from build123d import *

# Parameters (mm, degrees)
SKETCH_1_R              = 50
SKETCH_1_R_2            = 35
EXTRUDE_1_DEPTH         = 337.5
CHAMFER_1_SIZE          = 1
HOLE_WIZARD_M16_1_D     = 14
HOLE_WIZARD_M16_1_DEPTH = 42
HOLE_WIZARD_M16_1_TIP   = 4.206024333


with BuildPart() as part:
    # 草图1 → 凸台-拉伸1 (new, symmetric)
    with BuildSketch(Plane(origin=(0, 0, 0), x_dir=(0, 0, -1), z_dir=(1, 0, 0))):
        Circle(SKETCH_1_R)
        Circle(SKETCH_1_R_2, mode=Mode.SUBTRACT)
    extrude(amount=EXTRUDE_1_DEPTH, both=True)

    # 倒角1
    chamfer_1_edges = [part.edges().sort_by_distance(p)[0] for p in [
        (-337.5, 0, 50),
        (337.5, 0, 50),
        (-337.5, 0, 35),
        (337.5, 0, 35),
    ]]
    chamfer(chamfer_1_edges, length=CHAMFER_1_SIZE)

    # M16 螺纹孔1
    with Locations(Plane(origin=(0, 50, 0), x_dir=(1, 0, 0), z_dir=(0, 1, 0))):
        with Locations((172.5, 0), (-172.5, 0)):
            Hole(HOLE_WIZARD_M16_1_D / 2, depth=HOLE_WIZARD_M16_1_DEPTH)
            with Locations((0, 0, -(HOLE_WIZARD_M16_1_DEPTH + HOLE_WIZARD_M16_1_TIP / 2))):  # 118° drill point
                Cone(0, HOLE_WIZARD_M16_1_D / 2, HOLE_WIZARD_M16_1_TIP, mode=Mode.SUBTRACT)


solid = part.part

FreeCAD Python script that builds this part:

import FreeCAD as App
import Part
import Sketcher

V = App.Vector
Q = App.Units.Quantity


def edges_at(feature, points):
    """Names of the edges that pass closest to the given points."""
    edges = feature.Shape.Edges
    near = lambda p: min(range(len(edges)), key=lambda i: edges[i].distToShape(Part.Vertex(*p))[0])
    return sorted({f"Edge{near(p) + 1}" for p in points})

doc = App.newDocument("Part")
params = doc.addObject("Spreadsheet::Sheet", "Params")
for row, (alias, value) in enumerate([
    ("sketch1_diameter", "100 mm"),
    ("sketch1_diameter2", "70 mm"),
    ("pad1_length", "675 mm"),
    ("chamfer_size", "1 mm"),
    ("sketch2_diameter", "14 mm"),
    ("hole_diameter", "14 mm"),
    ("hole_depth", "42 mm"),
], start=1):
    params.set(f"A{row}", alias)
    params.set(f"B{row}", "=" + value)
    params.setAlias(f"B{row}", alias)

body = doc.addObject("PartDesign::Body", "Body")

# Sketch on YZ plane
sketch1 = body.newObject("Sketcher::SketchObject", "Sketch")
sketch1.AttachmentSupport = (doc.getObject("YZ_Plane"), [""])
sketch1.MapMode = "FlatFace"
sketch1.addGeometry([
    Part.Circle(V(0, 0, 0), V(0, 0, 1), 50),
    Part.Circle(V(0, 0, 0), V(0, 0, 1), 35),
], False)
sketch1.addConstraint([
    Sketcher.Constraint("Coincident", 0, 3, -1, 1),
    Sketcher.Constraint("Coincident", 1, 3, -1, 1),
    Sketcher.Constraint("Diameter", 0, Q("100 mm")),
    Sketcher.Constraint("Diameter", 1, Q("70 mm")),
])
sketch1.setExpression("Constraints[2]", "Params.sketch1_diameter")
sketch1.setExpression("Constraints[3]", "Params.sketch1_diameter2")
pad1 = body.newObject("PartDesign::Pad", "Pad")
pad1.Profile = sketch1
pad1.setExpression("Length", "Params.pad1_length")
pad1.Midplane = True
doc.recompute()

chamfer = body.newObject("PartDesign::Chamfer", "Chamfer")
chamfer.Base = (pad1, edges_at(pad1, [
    (-337.5, 0, 50),
    (337.5, 0, 50),
    (-337.5, 0, 35),
    (337.5, 0, 35),
]))
chamfer.setExpression("Size", "Params.chamfer_size")

# Sketch on XZ plane
sketch2 = body.newObject("Sketcher::SketchObject", "Sketch001")
sketch2.AttachmentSupport = (doc.getObject("XZ_Plane"), [""])
sketch2.MapMode = "FlatFace"
sketch2.AttachmentOffset = App.Placement(V(0, 0, -50), App.Rotation())
sketch2.addGeometry([
    Part.Circle(V(172, 0, 0), V(0, 0, 1), 7),
    Part.Circle(V(-172, 0, 0), V(0, 0, 1), 7),
], False)
sketch2.addConstraint([
    Sketcher.Constraint("Equal", 0, 1),
    Sketcher.Constraint("Symmetric", 0, 3, 1, 3, -1, 1),
    Sketcher.Constraint("PointOnObject", 0, 3, -1),
    Sketcher.Constraint("Diameter", 0, Q("14 mm")),
    Sketcher.Constraint("DistanceX", 1, 3, 0, 3, Q("345 mm")),
])
sketch2.setExpression("Constraints[3]", "Params.sketch2_diameter")
doc.recompute()
hole = body.newObject("PartDesign::Hole", "Hole")
hole.Profile = sketch2
hole.ThreadType = "None"
hole.setExpression("Diameter", "Params.hole_diameter")
hole.DepthType = "Dimension"
hole.setExpression("Depth", "Params.hole_depth")
hole.DrillPoint = "Angled"
hole.DrillPointAngle = 118
hole.Reversed = True

doc.recompute()
